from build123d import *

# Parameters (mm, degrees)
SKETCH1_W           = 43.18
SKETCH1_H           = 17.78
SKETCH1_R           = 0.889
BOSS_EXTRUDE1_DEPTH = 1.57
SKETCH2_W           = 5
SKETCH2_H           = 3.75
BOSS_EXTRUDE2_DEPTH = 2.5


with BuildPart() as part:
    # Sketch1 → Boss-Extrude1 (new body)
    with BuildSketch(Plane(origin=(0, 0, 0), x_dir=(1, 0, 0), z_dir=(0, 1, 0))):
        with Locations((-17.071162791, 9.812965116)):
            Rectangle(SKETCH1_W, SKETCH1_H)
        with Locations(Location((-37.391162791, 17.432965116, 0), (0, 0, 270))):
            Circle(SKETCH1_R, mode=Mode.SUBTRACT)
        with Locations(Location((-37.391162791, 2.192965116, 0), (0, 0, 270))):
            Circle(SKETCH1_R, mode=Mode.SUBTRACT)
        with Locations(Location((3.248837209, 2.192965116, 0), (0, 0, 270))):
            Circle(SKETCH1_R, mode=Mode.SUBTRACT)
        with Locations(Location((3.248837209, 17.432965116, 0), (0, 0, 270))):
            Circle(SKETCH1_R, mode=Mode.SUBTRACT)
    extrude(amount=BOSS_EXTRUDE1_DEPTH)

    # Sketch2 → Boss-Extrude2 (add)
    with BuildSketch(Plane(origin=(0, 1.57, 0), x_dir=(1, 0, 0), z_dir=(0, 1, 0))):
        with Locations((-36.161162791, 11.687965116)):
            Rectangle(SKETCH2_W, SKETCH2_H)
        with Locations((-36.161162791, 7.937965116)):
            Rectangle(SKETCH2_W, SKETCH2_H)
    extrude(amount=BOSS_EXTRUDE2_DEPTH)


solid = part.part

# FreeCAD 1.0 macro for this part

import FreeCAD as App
import Part
import Sketcher
Q = App.Units.Quantity

doc = App.newDocument("Part")
body = doc.addObject("PartDesign::Body", "Body")

# Sketch on XZ plane
sketch1 = body.newObject("Sketcher::SketchObject", "Sketch")
sketch1.AttachmentSupport = (doc.getObject("XZ_Plane"), [""])
sketch1.MapMode = "FlatFace"
sketch1.addGeometry(Part.LineSegment(App.Vector(-38.7, -18.7, 0), App.Vector(-38.7, -0.9, 0)), False)
sketch1.addGeometry(Part.LineSegment(App.Vector(-38.7, -0.9, 0), App.Vector(4.5, -0.9, 0)), False)
sketch1.addGeometry(Part.LineSegment(App.Vector(4.5, -0.9, 0), App.Vector(4.5, -18.7, 0)), False)
sketch1.addGeometry(Part.LineSegment(App.Vector(4.5, -18.7, 0), App.Vector(-38.7, -18.7, 0)), False)
sketch1.addGeometry(Part.Circle(App.Vector(-37.4, -2.2, 0), App.Vector(0, 0, 1), 0.9), False)
sketch1.addGeometry(Part.Circle(App.Vector(3.2, -2.2, 0), App.Vector(0, 0, 1), 0.9), False)
sketch1.addGeometry(Part.Circle(App.Vector(-37.4, -17.4, 0), App.Vector(0, 0, 1), 0.9), False)
sketch1.addGeometry(Part.Circle(App.Vector(3.2, -17.4, 0), App.Vector(0, 0, 1), 0.9), False)
sketch1.addConstraint(Sketcher.Constraint("Coincident", 0, 2, 1, 1))
sketch1.addConstraint(Sketcher.Constraint("Coincident", 1, 2, 2, 1))
sketch1.addConstraint(Sketcher.Constraint("Coincident", 2, 2, 3, 1))
sketch1.addConstraint(Sketcher.Constraint("Coincident", 3, 2, 0, 1))
sketch1.addConstraint(Sketcher.Constraint("Vertical", 0))
sketch1.addConstraint(Sketcher.Constraint("Horizontal", 1))
sketch1.addConstraint(Sketcher.Constraint("Vertical", 2))
sketch1.addConstraint(Sketcher.Constraint("Horizontal", 3))
sketch1.addConstraint(Sketcher.Constraint("Equal", 4, 5))
sketch1.addConstraint(Sketcher.Constraint("Equal", 5, 6))
sketch1.addConstraint(Sketcher.Constraint("Equal", 6, 7))
sketch1.addConstraint(Sketcher.Constraint("Horizontal", 4, 3, 5, 3))
sketch1.addConstraint(Sketcher.Constraint("Horizontal", 6, 3, 7, 3))
sketch1.addConstraint(Sketcher.Constraint("Vertical", 4, 3, 6, 3))
sketch1.addConstraint(Sketcher.Constraint("Vertical", 5, 3, 7, 3))
sketch1.addConstraint(Sketcher.Constraint("Diameter", 4, Q("1.778 mm")))
sketch1.addConstraint(Sketcher.Constraint("DistanceX", 1, 1, 1, 2, Q("43.18 mm")))
sketch1.addConstraint(Sketcher.Constraint("DistanceY", 0, 1, 0, 2, Q("17.78 mm")))
sketch1.addConstraint(Sketcher.Constraint("DistanceX", 4, 3, 5, 3, Q("40.64 mm")))
sketch1.addConstraint(Sketcher.Constraint("DistanceY", 6, 3, 4, 3, Q("15.24 mm")))
sketch1.addConstraint(Sketcher.Constraint("DistanceX", 0, 2, 4, 3, Q("1.27 mm")))
sketch1.addConstraint(Sketcher.Constraint("DistanceY", 4, 3, 0, 2, Q("1.27 mm")))
sketch1.addConstraint(Sketcher.Constraint("DistanceX", 4, 3, -1, 1, Q("37.391163 mm")))
sketch1.addConstraint(Sketcher.Constraint("DistanceY", 4, 3, -1, 1, Q("2.192965 mm")))
pad1 = body.newObject("PartDesign::Pad", "Pad")
pad1.Profile = sketch1
pad1.Length = 1.57
pad1.Reversed = True

# Sketch on XZ plane
sketch2 = body.newObject("Sketcher::SketchObject", "Sketch001")
sketch2.AttachmentSupport = (doc.getObject("XZ_Plane"), [""])
sketch2.MapMode = "FlatFace"
sketch2.AttachmentOffset = App.Placement(App.Vector(0, 0, -1.57), App.Rotation())
sketch2.addGeometry(Part.LineSegment(App.Vector(-39, -14, 0), App.Vector(-39, -6, 0)), False)
sketch2.addGeometry(Part.LineSegment(App.Vector(-39, -6, 0), App.Vector(-34, -6, 0)), False)
sketch2.addGeometry(Part.LineSegment(App.Vector(-34, -6, 0), App.Vector(-34, -14, 0)), False)
sketch2.addGeometry(Part.LineSegment(App.Vector(-34, -14, 0), App.Vector(-39, -14, 0)), False)
sketch2.addConstraint(Sketcher.Constraint("Coincident", 0, 2, 1, 1))
sketch2.addConstraint(Sketcher.Constraint("Coincident", 1, 2, 2, 1))
sketch2.addConstraint(Sketcher.Constraint("Coincident", 2, 2, 3, 1))
sketch2.addConstraint(Sketcher.Constraint("Coincident", 3, 2, 0, 1))
sketch2.addConstraint(Sketcher.Constraint("Vertical", 0))
sketch2.addConstraint(Sketcher.Constraint("Horizontal", 1))
sketch2.addConstraint(Sketcher.Constraint("Vertical", 2))
sketch2.addConstraint(Sketcher.Constraint("Horizontal", 3))
sketch2.addConstraint(Sketcher.Constraint("DistanceX", 1, 1, 1, 2, Q("5 mm")))
sketch2.addConstraint(Sketcher.Constraint("DistanceY", 0, 1, 0, 2, Q("7.5 mm")))
sketch2.addConstraint(Sketcher.Constraint("DistanceX", 0, 2, -1, 1, Q("38.661163 mm")))
sketch2.addConstraint(Sketcher.Constraint("DistanceY", 0, 2, -1, 1, Q("6.062965 mm")))
pad2 = body.newObject("PartDesign::Pad", "Pad001")
pad2.Profile = sketch2
pad2.Length = 2.5
pad2.Reversed = True

doc.recompute()
